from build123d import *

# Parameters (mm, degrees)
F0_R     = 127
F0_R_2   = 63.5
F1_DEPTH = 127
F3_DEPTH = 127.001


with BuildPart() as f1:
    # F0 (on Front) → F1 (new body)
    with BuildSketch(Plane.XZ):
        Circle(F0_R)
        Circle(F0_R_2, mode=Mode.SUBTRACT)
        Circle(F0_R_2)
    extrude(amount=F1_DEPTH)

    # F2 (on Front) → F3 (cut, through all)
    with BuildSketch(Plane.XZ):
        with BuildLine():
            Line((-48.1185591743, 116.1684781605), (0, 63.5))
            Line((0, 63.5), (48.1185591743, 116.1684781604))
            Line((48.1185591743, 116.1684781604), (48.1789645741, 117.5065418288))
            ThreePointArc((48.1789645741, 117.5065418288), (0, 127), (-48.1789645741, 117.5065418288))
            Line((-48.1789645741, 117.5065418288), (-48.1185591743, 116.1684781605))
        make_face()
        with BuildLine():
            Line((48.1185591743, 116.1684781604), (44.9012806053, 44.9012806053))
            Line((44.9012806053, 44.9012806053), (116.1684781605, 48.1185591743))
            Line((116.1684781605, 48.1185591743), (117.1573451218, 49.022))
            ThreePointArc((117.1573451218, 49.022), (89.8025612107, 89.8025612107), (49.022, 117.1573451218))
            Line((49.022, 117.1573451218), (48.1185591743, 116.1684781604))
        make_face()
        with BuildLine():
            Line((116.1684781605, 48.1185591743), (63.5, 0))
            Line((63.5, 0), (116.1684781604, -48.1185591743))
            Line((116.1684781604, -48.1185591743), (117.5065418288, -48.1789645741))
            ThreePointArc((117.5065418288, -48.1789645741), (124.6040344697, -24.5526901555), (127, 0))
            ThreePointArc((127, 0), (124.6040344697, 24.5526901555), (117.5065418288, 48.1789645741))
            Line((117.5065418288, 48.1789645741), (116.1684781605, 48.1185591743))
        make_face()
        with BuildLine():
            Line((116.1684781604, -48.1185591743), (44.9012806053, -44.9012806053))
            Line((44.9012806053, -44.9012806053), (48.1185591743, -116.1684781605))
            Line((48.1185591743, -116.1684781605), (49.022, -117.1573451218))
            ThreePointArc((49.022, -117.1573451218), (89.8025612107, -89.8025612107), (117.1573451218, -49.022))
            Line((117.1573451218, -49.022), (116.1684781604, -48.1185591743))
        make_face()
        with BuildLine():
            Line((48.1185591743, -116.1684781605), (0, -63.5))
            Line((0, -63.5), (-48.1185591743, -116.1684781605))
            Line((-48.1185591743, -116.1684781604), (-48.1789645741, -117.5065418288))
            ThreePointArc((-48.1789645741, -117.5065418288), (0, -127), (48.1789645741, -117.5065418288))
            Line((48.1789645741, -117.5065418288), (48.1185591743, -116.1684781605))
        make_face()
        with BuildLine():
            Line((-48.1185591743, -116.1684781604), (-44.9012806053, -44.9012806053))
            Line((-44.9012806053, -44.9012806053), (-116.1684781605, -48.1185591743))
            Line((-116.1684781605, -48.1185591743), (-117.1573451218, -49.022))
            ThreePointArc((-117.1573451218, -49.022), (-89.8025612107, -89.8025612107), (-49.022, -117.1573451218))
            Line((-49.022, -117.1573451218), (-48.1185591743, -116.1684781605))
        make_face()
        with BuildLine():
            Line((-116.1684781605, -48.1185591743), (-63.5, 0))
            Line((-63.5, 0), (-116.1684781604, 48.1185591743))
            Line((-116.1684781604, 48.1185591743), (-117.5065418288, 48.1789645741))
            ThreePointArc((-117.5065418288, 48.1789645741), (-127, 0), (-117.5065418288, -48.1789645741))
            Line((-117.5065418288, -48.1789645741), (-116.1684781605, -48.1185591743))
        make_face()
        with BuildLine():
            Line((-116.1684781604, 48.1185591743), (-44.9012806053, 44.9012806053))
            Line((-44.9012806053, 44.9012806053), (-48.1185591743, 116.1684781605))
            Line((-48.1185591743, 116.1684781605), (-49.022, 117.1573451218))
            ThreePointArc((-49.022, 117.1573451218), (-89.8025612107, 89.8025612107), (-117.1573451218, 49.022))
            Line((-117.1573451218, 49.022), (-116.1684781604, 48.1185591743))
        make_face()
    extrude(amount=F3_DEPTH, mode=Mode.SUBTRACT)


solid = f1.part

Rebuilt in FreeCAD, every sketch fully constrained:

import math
import FreeCAD as App
import Part
import Sketcher
Q = App.Units.Quantity

doc = App.newDocument("Part")
body = doc.addObject("PartDesign::Body", "Body")
body.AllowCompound = True

# Sketch on XZ plane
sketch1 = doc.addObject("Sketcher::SketchObject", "Sketch")
body.addObject(sketch1)
sketch1.AttachmentSupport = (doc.XZ_Plane, [""])
sketch1.MapMode = "FlatFace"
sketch1.addGeometry(Part.Circle(App.Vector(0, 0, 0), App.Vector(0, 0, 1), 127), False)
sketch1.addConstraint(Sketcher.Constraint("Coincident", 0, 3, -1, 1))
sketch1.addConstraint(Sketcher.Constraint("Diameter", 0, Q("10 in")))
pad1 = doc.addObject("PartDesign::Pad", "Pad")
body.addObject(pad1)
pad1.Profile = sketch1
pad1.Length = Q("5 in")

# Sketch on XZ plane
sketch2 = doc.addObject("Sketcher::SketchObject", "Sketch001")
body.addObject(sketch2)
sketch2.AttachmentSupport = (doc.XZ_Plane, [""])
sketch2.MapMode = "FlatFace"
sketch2.addGeometry(Part.LineSegment(App.Vector(-48.118559, 116.168478, 0), App.Vector(0, 63.5, 0)), False)
sketch2.addGeometry(Part.LineSegment(App.Vector(0, 63.5, 0), App.Vector(48.118559, 116.168478, 0)), False)
sketch2.addGeometry(Part.LineSegment(App.Vector(48.118559, 116.168478, 0), App.Vector(48.178965, 117.506542, 0)), False)
sketch2.addGeometry(Part.ArcOfCircle(Part.Circle(App.Vector(0, 0, 0), App.Vector(0, 0, 1), 127), math.radians(67.705836), math.radians(112.294164)), False)
sketch2.addGeometry(Part.LineSegment(App.Vector(-48.178965, 117.506542, 0), App.Vector(-48.118559, 116.168478, 0)), False)
sketch2.addGeometry(Part.LineSegment(App.Vector(48.118559, 116.168478, 0), App.Vector(44.901281, 44.901281, 0)), False)
sketch2.addGeometry(Part.LineSegment(App.Vector(44.901281, 44.901281, 0), App.Vector(116.168478, 48.118559, 0)), False)
sketch2.addGeometry(Part.LineSegment(App.Vector(116.168478, 48.118559, 0), App.Vector(117.157345, 49.022, 0)), False)
sketch2.addGeometry(Part.ArcOfCircle(Part.Circle(App.Vector(0, 0, 0), App.Vector(0, 0, 1), 127), math.radians(22.705836), math.radians(67.294164)), False)
sketch2.addGeometry(Part.LineSegment(App.Vector(49.022, 117.157345, 0), App.Vector(48.118559, 116.168478, 0)), False)
sketch2.addGeometry(Part.LineSegment(App.Vector(116.168478, 48.118559, 0), App.Vector(63.5, 0, 0)), False)
sketch2.addGeometry(Part.LineSegment(App.Vector(63.5, 0, 0), App.Vector(116.168478, -48.118559, 0)), False)
sketch2.addGeometry(Part.LineSegment(App.Vector(116.168478, -48.118559, 0), App.Vector(117.506542, -48.178965, 0)), False)
sketch2.addGeometry(Part.ArcOfCircle(Part.Circle(App.Vector(0, 0, 0), App.Vector(0, 0, 1), 127), math.radians(-22.294164), math.radians(22.294164)), False)
sketch2.addGeometry(Part.LineSegment(App.Vector(117.506542, 48.178965, 0), App.Vector(116.168478, 48.118559, 0)), False)
sketch2.addGeometry(Part.LineSegment(App.Vector(116.168478, -48.118559, 0), App.Vector(44.901281, -44.901281, 0)), False)
sketch2.addGeometry(Part.LineSegment(App.Vector(44.901281, -44.901281, 0), App.Vector(48.118559, -116.168478, 0)), False)
sketch2.addGeometry(Part.LineSegment(App.Vector(48.118559, -116.168478, 0), App.Vector(49.022, -117.157345, 0)), False)
sketch2.addGeometry(Part.ArcOfCircle(Part.Circle(App.Vector(0, 0, 0), App.Vector(0, 0, 1), 127), math.radians(-67.294164), math.radians(-22.705836)), False)
sketch2.addGeometry(Part.LineSegment(App.Vector(117.157345, -49.022, 0), App.Vector(116.168478, -48.118559, 0)), False)
sketch2.addGeometry(Part.LineSegment(App.Vector(48.118559, -116.168478, 0), App.Vector(0, -63.5, 0)), False)
sketch2.addGeometry(Part.LineSegment(App.Vector(0, -63.5, 0), App.Vector(-48.118559, -116.168478, 0)), False)
sketch2.addGeometry(Part.LineSegment(App.Vector(-48.118559, -116.168478, 0), App.Vector(-48.178965, -117.506542, 0)), False)
sketch2.addGeometry(Part.ArcOfCircle(Part.Circle(App.Vector(0, 0, 0), App.Vector(0, 0, 1), 127), math.radians(-112.294164), math.radians(-67.705836)), False)
sketch2.addGeometry(Part.LineSegment(App.Vector(48.178965, -117.506542, 0), App.Vector(48.118559, -116.168478, 0)), False)
sketch2.addGeometry(Part.LineSegment(App.Vector(-48.118559, -116.168478, 0), App.Vector(-44.901281, -44.901281, 0)), False)
sketch2.addGeometry(Part.LineSegment(App.Vector(-44.901281, -44.901281, 0), App.Vector(-116.168478, -48.118559, 0)), False)
sketch2.addGeometry(Part.LineSegment(App.Vector(-116.168478, -48.118559, 0), App.Vector(-117.157345, -49.022, 0)), False)
sketch2.addGeometry(Part.ArcOfCircle(Part.Circle(App.Vector(0, 0, 0), App.Vector(0, 0, 1), 127), math.radians(-157.294164), math.radians(-112.705836)), False)
sketch2.addGeometry(Part.LineSegment(App.Vector(-49.022, -117.157345, 0), App.Vector(-48.118559, -116.168478, 0)), False)
sketch2.addGeometry(Part.LineSegment(App.Vector(-116.168478, -48.118559, 0), App.Vector(-63.5, 0, 0)), False)
sketch2.addGeometry(Part.LineSegment(App.Vector(-63.5, 0, 0), App.Vector(-116.168478, 48.118559, 0)), False)
sketch2.addGeometry(Part.LineSegment(App.Vector(-116.168478, 48.118559, 0), App.Vector(-117.506542, 48.178965, 0)), False)
sketch2.addGeometry(Part.ArcOfCircle(Part.Circle(App.Vector(0, 0, 0), App.Vector(0, 0, 1), 127), math.radians(157.705836), math.radians(202.294164)), False)
sketch2.addGeometry(Part.LineSegment(App.Vector(-117.506542, -48.178965, 0), App.Vector(-116.168478, -48.118559, 0)), False)
sketch2.addGeometry(Part.LineSegment(App.Vector(-116.168478, 48.118559, 0), App.Vector(-44.901281, 44.901281, 0)), False)
sketch2.addGeometry(Part.LineSegment(App.Vector(-44.901281, 44.901281, 0), App.Vector(-48.118559, 116.168478, 0)), False)
sketch2.addGeometry(Part.LineSegment(App.Vector(-48.118559, 116.168478, 0), App.Vector(-49.022, 117.157345, 0)), False)
sketch2.addGeometry(Part.ArcOfCircle(Part.Circle(App.Vector(0, 0, 0), App.Vector(0, 0, 1), 127), math.radians(112.705836), math.radians(157.294164)), False)
sketch2.addGeometry(Part.LineSegment(App.Vector(-117.157345, 49.022, 0), App.Vector(-116.168478, 48.118559, 0)), False)
sketch2.addConstraint(Sketcher.Constraint("Coincident", 0, 2, 1, 1))
sketch2.addConstraint(Sketcher.Constraint("Coincident", 1, 2, 2, 1))
sketch2.addConstraint(Sketcher.Constraint("Coincident", 2, 2, 3, 1))
sketch2.addConstraint(Sketcher.Constraint("Coincident", 3, 2, 4, 1))
sketch2.addConstraint(Sketcher.Constraint("Coincident", 4, 2, 0, 1))
sketch2.addConstraint(Sketcher.Constraint("Coincident", 5, 2, 6, 1))
sketch2.addConstraint(Sketcher.Constraint("Coincident", 6, 2, 7, 1))
sketch2.addConstraint(Sketcher.Constraint("Coincident", 7, 2, 8, 1))
sketch2.addConstraint(Sketcher.Constraint("Coincident", 8, 2, 9, 1))
sketch2.addConstraint(Sketcher.Constraint("Coincident", 9, 2, 5, 1))
sketch2.addConstraint(Sketcher.Constraint("Coincident", 10, 2, 11, 1))
sketch2.addConstraint(Sketcher.Constraint("Coincident", 11, 2, 12, 1))
sketch2.addConstraint(Sketcher.Constraint("Coincident", 12, 2, 13, 1))
sketch2.addConstraint(Sketcher.Constraint("Coincident", 13, 2, 14, 1))
sketch2.addConstraint(Sketcher.Constraint("Coincident", 14, 2, 10, 1))
sketch2.addConstraint(Sketcher.Constraint("Coincident", 15, 2, 16, 1))
sketch2.addConstraint(Sketcher.Constraint("Coincident", 16, 2, 17, 1))
sketch2.addConstraint(Sketcher.Constraint("Coincident", 17, 2, 18, 1))
sketch2.addConstraint(Sketcher.Constraint("Coincident", 18, 2, 19, 1))
sketch2.addConstraint(Sketcher.Constraint("Coincident", 19, 2, 15, 1))
sketch2.addConstraint(Sketcher.Constraint("Coincident", 20, 2, 21, 1))
sketch2.addConstraint(Sketcher.Constraint("Coincident", 21, 2, 22, 1))
sketch2.addConstraint(Sketcher.Constraint("Coincident", 22, 2, 23, 1))
sketch2.addConstraint(Sketcher.Constraint("Coincident", 23, 2, 24, 1))
sketch2.addConstraint(Sketcher.Constraint("Coincident", 24, 2, 20, 1))
sketch2.addConstraint(Sketcher.Constraint("Coincident", 25, 2, 26, 1))
sketch2.addConstraint(Sketcher.Constraint("Coincident", 26, 2, 27, 1))
sketch2.addConstraint(Sketcher.Constraint("Coincident", 27, 2, 28, 1))
sketch2.addConstraint(Sketcher.Constraint("Coincident", 28, 2, 29, 1))
sketch2.addConstraint(Sketcher.Constraint("Coincident", 29, 2, 25, 1))
sketch2.addConstraint(Sketcher.Constraint("Coincident", 30, 2, 31, 1))
sketch2.addConstraint(Sketcher.Constraint("Coincident", 31, 2, 32, 1))
sketch2.addConstraint(Sketcher.Constraint("Coincident", 32, 2, 33, 1))
sketch2.addConstraint(Sketcher.Constraint("Coincident", 33, 2, 34, 1))
sketch2.addConstraint(Sketcher.Constraint("Coincident", 34, 2, 30, 1))
sketch2.addConstraint(Sketcher.Constraint("Coincident", 35, 2, 36, 1))
sketch2.addConstraint(Sketcher.Constraint("Coincident", 36, 2, 37, 1))
sketch2.addConstraint(Sketcher.Constraint("Coincident", 37, 2, 38, 1))
sketch2.addConstraint(Sketcher.Constraint("Coincident", 38, 2, 39, 1))
sketch2.addConstraint(Sketcher.Constraint("Coincident", 39, 2, 35, 1))
sketch2.addConstraint(Sketcher.Constraint("Coincident", 3, 3, -1, 1))
sketch2.addConstraint(Sketcher.Constraint("Coincident", 8, 3, -1, 1))
sketch2.addConstraint(Sketcher.Constraint("Coincident", 13, 3, -1, 1))
sketch2.addConstraint(Sketcher.Constraint("Coincident", 18, 3, -1, 1))
sketch2.addConstraint(Sketcher.Constraint("Coincident", 23, 3, -1, 1))
sketch2.addConstraint(Sketcher.Constraint("Coincident", 28, 3, -1, 1))
sketch2.addConstraint(Sketcher.Constraint("Coincident", 33, 3, -1, 1))
sketch2.addConstraint(Sketcher.Constraint("Coincident", 38, 3, -1, 1))
sketch2.addConstraint(Sketcher.Constraint("Coincident", 9, 2, 1, 2))
sketch2.addConstraint(Sketcher.Constraint("Coincident", 14, 2, 6, 2))
sketch2.addConstraint(Sketcher.Constraint("Coincident", 19, 2, 11, 2))
sketch2.addConstraint(Sketcher.Constraint("Coincident", 24, 2, 16, 2))
sketch2.addConstraint(Sketcher.Constraint("Coincident", 29, 2, 21, 2))
sketch2.addConstraint(Sketcher.Constraint("Coincident", 34, 2, 26, 2))
sketch2.addConstraint(Sketcher.Constraint("Coincident", 36, 2, 4, 2))
sketch2.addConstraint(Sketcher.Constraint("Coincident", 39, 2, 31, 2))
sketch2.addConstraint(Sketcher.Constraint("Equal", 3, 8))
sketch2.addConstraint(Sketcher.Constraint("Equal", 8, 13))
sketch2.addConstraint(Sketcher.Constraint("Equal", 13, 18))
sketch2.addConstraint(Sketcher.Constraint("Equal", 18, 23))
sketch2.addConstraint(Sketcher.Constraint("Equal", 23, 28))
sketch2.addConstraint(Sketcher.Constraint("Equal", 28, 33))
sketch2.addConstraint(Sketcher.Constraint("Equal", 33, 38))
sketch2.addConstraint(Sketcher.Constraint("Symmetric", 4, 2, 16, 2, -1, 1))
sketch2.addConstraint(Sketcher.Constraint("Symmetric", 0, 2, 20, 2, -1, 1))
sketch2.addConstraint(Sketcher.Constraint("Symmetric", 1, 2, 21, 2, -1, 1))
sketch2.addConstraint(Sketcher.Constraint("Symmetric", 5, 2, 25, 2, -1, 1))
sketch2.addConstraint(Sketcher.Constraint("Symmetric", 6, 2, 26, 2, -1, 1))
sketch2.addConstraint(Sketcher.Constraint("Symmetric", 10, 2, 30, 2, -1, 1))
sketch2.addConstraint(Sketcher.Constraint("Symmetric", 11, 2, 31, 2, -1, 1))
sketch2.addConstraint(Sketcher.Constraint("Symmetric", 15, 2, 35, 2, -1, 1))
sketch2.addConstraint(Sketcher.Constraint("Symmetric", 1, 2, 4, 2, -2))
sketch2.addConstraint(Sketcher.Constraint("Symmetric", 15, 2, 25, 2, -2))
sketch2.addConstraint(Sketcher.Constraint("Symmetric", 11, 2, 26, 2, -2))
sketch2.addConstraint(Sketcher.Constraint("PointOnObject", 0, 2, -2))
sketch2.addConstraint(Sketcher.Constraint("PointOnObject", 10, 2, -1))
sketch2.addConstraint(Sketcher.Constraint("Parallel", 2, 5))
sketch2.addConstraint(Sketcher.Constraint("Perpendicular", 4, 6))
sketch2.addConstraint(Sketcher.Constraint("Perpendicular", 0, 7))
sketch2.addConstraint(Sketcher.Constraint("Parallel", 1, 9))
sketch2.addConstraint(Sketcher.Constraint("Parallel", 7, 10))
sketch2.addConstraint(Sketcher.Constraint("Perpendicular", 5, 12))
sketch2.addConstraint(Sketcher.Constraint("Parallel", 6, 14))
sketch2.addConstraint(Sketcher.Constraint("Parallel", 12, 15))
sketch2.addConstraint(Sketcher.Constraint("Perpendicular", 10, 17))
sketch2.addConstraint(Sketcher.Constraint("Parallel", 11, 19))
sketch2.addConstraint(Sketcher.Constraint("Perpendicular", 15, 22))
sketch2.addConstraint(Sketcher.Constraint("Parallel", 16, 24))
sketch2.addConstraint(Sketcher.Constraint("Perpendicular", 20, 27))
sketch2.addConstraint(Sketcher.Constraint("Parallel", 21, 29))
sketch2.addConstraint(Sketcher.Constraint("Perpendicular", 25, 32))
sketch2.addConstraint(Sketcher.Constraint("Parallel", 26, 34))
sketch2.addConstraint(Sketcher.Constraint("Perpendicular", 30, 37))
sketch2.addConstraint(Sketcher.Constraint("Parallel", 31, 39))
sketch2.addConstraint(Sketcher.Constraint("Equal", 1, 5))
sketch2.addConstraint(Sketcher.Constraint("Equal", 5, 6))
sketch2.addConstraint(Sketcher.Constraint("Equal", 4, 7))
sketch2.addConstraint(Sketcher.Constraint("Radius", 3, Q("5 in")))
sketch2.addConstraint(Sketcher.Constraint("DistanceY", -1, 1, 0, 2, Q("2.5 in")))
sketch2.addConstraint(Sketcher.Constraint("DistanceX", -1, 1, 10, 2, Q("2.5 in")))
sketch2.addConstraint(Sketcher.Constraint("DistanceY", -1, 1, 7, 2, Q("1.93 in")))
pocket1 = doc.addObject("PartDesign::Pocket", "Pocket")
body.addObject(pocket1)
pocket1.Profile = sketch2
pocket1.Type = "ThroughAll"
pocket1.Reversed = True

doc.recompute()
